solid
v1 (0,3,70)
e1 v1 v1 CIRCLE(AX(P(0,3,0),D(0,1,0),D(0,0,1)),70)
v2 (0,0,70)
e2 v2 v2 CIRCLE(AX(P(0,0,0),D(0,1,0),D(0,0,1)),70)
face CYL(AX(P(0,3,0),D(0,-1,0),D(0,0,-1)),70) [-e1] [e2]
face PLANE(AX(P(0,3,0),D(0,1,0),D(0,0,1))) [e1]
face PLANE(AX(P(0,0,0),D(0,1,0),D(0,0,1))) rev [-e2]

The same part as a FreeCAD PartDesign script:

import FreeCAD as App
import Part
import Sketcher
from FreeCAD import Vector

doc = App.newDocument("Part")
body = doc.addObject("PartDesign::Body", "Body")

# Sketch on XZ plane
sketch1 = body.newObject("Sketcher::SketchObject", "Sketch")
sketch1.AttachmentSupport = (doc.getObject("XZ_Plane"), [""])
sketch1.MapMode = "FlatFace"
sketch1.addGeometry(Part.Circle(Vector(0, 0, 0), Vector(0, 0, 1), 70), False)
sketch1.addConstraint(Sketcher.Constraint("Coincident", 0, 3, -1, 1))
sketch1.addConstraint(Sketcher.Constraint("Diameter", 0, 140.0))
pad1 = body.newObject("PartDesign::Pad", "Pad")
pad1.Profile = sketch1
pad1.Length = 3
pad1.Reversed = True

doc.recompute()
